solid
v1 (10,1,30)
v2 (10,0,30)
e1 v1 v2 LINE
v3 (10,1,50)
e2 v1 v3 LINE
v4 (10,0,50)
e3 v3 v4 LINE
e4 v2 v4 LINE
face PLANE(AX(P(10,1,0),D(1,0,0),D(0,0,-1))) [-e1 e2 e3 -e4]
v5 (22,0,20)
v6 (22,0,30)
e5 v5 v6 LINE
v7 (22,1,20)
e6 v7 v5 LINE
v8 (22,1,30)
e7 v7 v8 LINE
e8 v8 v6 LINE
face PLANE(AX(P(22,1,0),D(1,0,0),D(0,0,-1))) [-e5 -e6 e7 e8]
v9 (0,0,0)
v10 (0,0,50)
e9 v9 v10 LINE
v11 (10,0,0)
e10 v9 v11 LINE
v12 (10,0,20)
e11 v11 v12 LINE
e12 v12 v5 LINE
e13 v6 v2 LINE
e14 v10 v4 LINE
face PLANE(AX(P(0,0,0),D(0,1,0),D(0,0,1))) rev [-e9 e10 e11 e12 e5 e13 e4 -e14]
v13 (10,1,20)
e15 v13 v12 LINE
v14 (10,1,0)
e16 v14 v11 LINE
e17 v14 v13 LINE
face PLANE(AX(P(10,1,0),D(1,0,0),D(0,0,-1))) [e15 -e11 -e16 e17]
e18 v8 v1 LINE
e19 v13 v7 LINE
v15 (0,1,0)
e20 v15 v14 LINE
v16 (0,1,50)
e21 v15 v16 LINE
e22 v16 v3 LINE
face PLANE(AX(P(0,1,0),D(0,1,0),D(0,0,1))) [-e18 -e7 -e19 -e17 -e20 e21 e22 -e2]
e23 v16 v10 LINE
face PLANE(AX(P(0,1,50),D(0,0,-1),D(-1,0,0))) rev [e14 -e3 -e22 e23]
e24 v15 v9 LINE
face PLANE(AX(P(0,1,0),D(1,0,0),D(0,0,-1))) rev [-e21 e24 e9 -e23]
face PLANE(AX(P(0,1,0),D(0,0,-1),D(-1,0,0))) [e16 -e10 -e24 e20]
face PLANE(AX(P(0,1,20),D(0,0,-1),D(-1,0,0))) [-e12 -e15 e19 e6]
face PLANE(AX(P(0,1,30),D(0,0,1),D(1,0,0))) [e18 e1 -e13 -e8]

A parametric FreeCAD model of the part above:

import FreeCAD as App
import Part
import Sketcher

V = App.Vector


def add_polygon(sketch, points):
    """Adds a closed chain of lines whose ends are joined by coincident constraints."""
    first, n = sketch.GeometryCount, len(points)
    for a, b in zip(points, points[1:] + points[:1]):
        sketch.addGeometry(Part.LineSegment(App.Vector(*a, 0), App.Vector(*b, 0)), False)
    for i in range(n):
        sketch.addConstraint(Sketcher.Constraint("Coincident", first + i, 2, first + (i + 1) % n, 1))

doc = App.newDocument("Part")
body = doc.addObject("PartDesign::Body", "Body")

sketch1 = doc.addObject("Sketcher::SketchObject", "Sketch")
body.addObject(sketch1)
sketch1.AttachmentSupport = (doc.XZ_Plane, [""])
sketch1.MapMode = "FlatFace"
add_polygon(sketch1, [(0, 0), (0, 50), (10, 50), (10, 30), (22, 30), (22, 20), (10, 20), (10, 0)])
sketch1.addConstraint([
    Sketcher.Constraint("Vertical", 0),
    Sketcher.Constraint("Horizontal", 1),
    Sketcher.Constraint("Vertical", 2),
    Sketcher.Constraint("Horizontal", 3),
    Sketcher.Constraint("Vertical", 4),
    Sketcher.Constraint("Horizontal", 5),
    Sketcher.Constraint("Vertical", 6),
    Sketcher.Constraint("Horizontal", 7),
    Sketcher.Constraint("Coincident", 7, 2, -1, 1),
    Sketcher.Constraint("Vertical", 2, 2, 5, 2),
    Sketcher.Constraint("Equal", 7, 4),
    Sketcher.Constraint("Equal", 2, 6),
    Sketcher.Constraint("DistanceX", 1, 1, 1, 2, 10.0),
    Sketcher.Constraint("DistanceX", 3, 1, 3, 2, 12.0),
    Sketcher.Constraint("DistanceY", 0, 1, 0, 2, 50.0),
])
pad1 = doc.addObject("PartDesign::Pad", "Pad")
body.addObject(pad1)
pad1.Profile = sketch1
pad1.Length = 1
pad1.Reversed = True

doc.recompute()
